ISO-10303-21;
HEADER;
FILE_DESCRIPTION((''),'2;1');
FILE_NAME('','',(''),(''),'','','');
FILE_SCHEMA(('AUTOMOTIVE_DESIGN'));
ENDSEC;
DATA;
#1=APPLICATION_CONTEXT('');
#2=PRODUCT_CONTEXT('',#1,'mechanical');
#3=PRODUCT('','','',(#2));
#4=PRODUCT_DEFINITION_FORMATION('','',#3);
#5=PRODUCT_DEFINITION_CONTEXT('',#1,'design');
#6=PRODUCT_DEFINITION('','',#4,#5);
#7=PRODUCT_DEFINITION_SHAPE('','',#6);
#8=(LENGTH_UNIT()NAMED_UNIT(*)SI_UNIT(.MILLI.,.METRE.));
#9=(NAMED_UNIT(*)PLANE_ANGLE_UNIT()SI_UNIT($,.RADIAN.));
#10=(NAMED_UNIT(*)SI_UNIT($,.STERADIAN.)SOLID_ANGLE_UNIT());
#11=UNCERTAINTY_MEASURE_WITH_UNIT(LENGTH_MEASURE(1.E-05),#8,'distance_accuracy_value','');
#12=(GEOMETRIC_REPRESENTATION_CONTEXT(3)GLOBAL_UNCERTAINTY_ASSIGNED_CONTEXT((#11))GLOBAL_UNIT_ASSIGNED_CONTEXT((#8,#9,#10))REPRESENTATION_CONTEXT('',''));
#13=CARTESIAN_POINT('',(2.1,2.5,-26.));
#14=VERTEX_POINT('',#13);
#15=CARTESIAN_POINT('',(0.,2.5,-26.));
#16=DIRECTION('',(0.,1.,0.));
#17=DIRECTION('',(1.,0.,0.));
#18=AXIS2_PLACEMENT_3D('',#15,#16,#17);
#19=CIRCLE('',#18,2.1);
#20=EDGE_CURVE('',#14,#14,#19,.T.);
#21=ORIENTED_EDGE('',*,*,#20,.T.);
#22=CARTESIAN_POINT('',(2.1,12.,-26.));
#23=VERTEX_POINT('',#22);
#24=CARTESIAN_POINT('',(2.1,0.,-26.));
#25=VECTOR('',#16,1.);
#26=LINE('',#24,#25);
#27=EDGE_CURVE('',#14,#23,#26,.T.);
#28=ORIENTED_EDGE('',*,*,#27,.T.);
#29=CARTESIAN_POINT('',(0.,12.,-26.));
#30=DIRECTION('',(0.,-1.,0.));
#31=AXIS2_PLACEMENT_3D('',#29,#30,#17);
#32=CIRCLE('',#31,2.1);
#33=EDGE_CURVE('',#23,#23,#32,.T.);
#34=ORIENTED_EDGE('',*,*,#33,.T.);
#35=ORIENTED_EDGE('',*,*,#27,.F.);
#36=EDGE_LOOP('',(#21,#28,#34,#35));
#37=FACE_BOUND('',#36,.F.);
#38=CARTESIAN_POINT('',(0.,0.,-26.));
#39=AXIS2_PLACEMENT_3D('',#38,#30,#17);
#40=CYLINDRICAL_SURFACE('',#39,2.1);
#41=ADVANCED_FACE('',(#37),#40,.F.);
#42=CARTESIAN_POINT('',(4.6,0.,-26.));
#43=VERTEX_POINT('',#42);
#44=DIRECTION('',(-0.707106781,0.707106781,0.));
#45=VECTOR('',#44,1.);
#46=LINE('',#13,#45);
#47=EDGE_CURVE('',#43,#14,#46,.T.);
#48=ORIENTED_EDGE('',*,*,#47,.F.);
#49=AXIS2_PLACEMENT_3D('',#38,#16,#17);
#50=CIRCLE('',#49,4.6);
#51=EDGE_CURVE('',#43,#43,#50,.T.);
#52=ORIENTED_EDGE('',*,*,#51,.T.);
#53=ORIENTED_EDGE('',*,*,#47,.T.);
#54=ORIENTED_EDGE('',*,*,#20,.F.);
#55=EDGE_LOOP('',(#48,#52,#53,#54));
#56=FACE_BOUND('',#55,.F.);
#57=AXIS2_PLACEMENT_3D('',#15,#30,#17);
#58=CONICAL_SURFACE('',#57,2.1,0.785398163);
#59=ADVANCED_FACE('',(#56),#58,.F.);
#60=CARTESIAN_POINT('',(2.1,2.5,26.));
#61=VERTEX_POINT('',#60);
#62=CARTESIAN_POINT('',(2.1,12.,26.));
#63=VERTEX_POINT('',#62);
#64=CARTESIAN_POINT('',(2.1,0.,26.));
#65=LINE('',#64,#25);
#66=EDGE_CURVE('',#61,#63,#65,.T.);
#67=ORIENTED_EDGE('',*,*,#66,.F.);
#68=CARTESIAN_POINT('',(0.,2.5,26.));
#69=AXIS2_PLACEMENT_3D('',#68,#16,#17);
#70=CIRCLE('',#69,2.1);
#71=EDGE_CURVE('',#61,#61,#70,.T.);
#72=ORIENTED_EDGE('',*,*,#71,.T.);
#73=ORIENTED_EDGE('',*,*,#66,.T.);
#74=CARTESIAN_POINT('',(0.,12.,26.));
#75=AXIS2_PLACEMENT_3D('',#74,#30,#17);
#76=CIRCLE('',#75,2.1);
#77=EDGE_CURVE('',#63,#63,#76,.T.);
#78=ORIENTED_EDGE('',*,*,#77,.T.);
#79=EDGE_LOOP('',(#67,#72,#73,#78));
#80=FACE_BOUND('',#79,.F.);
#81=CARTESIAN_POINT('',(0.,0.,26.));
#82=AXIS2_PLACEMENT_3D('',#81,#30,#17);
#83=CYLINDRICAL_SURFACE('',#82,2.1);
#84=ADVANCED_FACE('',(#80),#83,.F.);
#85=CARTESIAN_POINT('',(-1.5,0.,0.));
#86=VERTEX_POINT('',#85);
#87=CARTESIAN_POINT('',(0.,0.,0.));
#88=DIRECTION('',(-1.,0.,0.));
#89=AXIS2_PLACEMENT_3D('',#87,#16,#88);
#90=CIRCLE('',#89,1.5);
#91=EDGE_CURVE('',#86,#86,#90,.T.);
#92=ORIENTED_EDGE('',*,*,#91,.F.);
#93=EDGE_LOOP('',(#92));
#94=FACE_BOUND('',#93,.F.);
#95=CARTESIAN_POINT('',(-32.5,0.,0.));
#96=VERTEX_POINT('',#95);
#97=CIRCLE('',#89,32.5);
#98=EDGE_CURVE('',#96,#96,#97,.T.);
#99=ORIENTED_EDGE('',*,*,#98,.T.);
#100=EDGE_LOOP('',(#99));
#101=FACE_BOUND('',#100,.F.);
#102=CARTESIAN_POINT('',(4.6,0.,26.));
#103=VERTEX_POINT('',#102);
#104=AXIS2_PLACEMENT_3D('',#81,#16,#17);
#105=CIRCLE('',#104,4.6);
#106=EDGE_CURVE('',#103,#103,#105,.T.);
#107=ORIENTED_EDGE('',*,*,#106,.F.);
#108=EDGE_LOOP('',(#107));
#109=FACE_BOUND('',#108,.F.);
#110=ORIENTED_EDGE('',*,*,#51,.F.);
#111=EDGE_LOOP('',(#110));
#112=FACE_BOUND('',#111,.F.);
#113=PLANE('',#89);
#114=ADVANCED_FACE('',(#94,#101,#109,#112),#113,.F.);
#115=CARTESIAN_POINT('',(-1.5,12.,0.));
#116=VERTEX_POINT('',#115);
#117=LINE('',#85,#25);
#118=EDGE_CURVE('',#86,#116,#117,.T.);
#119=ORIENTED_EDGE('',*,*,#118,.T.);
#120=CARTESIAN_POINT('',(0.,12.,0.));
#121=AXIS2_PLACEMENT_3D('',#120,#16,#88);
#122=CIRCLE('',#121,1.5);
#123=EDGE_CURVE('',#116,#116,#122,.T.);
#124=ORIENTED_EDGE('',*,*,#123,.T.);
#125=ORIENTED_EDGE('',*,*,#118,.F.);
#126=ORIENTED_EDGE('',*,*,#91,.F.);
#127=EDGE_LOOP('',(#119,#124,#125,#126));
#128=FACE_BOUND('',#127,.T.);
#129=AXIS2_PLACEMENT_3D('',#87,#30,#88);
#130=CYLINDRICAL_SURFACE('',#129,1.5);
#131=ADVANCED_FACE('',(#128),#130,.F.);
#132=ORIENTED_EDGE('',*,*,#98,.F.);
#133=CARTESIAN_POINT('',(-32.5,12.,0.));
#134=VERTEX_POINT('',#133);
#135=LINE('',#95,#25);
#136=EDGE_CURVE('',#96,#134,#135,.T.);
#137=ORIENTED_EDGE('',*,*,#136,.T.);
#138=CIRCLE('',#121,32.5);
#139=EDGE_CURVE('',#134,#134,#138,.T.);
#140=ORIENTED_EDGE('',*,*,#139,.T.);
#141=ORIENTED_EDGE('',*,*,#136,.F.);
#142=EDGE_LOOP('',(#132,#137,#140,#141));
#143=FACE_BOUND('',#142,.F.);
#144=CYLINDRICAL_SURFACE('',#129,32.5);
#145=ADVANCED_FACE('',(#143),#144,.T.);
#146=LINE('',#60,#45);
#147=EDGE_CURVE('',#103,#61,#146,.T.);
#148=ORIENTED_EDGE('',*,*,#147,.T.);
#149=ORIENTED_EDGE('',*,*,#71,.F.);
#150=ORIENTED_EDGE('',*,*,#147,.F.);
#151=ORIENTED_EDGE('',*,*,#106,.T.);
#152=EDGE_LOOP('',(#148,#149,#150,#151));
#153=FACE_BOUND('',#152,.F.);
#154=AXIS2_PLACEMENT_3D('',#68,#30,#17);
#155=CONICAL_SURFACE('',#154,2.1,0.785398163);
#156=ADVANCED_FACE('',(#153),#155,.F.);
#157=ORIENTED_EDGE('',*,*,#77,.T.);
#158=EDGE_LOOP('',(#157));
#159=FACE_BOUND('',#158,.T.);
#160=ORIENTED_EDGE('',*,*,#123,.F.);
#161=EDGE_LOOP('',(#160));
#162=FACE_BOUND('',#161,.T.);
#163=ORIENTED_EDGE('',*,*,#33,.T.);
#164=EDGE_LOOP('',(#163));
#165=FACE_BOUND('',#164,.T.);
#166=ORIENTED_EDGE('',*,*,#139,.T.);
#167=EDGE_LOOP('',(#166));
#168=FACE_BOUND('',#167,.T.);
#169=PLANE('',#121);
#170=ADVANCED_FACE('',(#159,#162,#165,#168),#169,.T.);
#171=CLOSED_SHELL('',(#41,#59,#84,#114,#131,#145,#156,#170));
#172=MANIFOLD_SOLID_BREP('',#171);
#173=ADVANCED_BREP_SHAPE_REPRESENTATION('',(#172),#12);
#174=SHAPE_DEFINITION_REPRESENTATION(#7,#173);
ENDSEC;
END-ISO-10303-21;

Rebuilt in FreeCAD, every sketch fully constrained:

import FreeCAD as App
import Part
import Sketcher

V = App.Vector


def edges_at(feature, points):
    """Names of the edges that pass closest to the given points."""
    edges = feature.Shape.Edges
    near = lambda p: min(range(len(edges)), key=lambda i: edges[i].distToShape(Part.Vertex(*p))[0])
    return sorted({f"Edge{near(p) + 1}" for p in points})

doc = App.newDocument("Part")
params = doc.addObject("Spreadsheet::Sheet", "Params")
for row, (alias, value) in enumerate([
    ("sketch1_diameter", "65 mm"),
    ("sketch1_diameter2", "3 mm"),
    ("pad1_length", "12 mm"),
    ("sketch2_diameter", "4.2 mm"),
    ("pocket1_length", "12 mm"),
    ("chamfer_size", "2.5 mm"),
], start=1):
    params.set(f"A{row}", alias)
    params.set(f"B{row}", "=" + value)
    params.setAlias(f"B{row}", alias)

body = doc.addObject("PartDesign::Body", "Body")

# Sketch on XZ plane
sketch1 = doc.addObject("Sketcher::SketchObject", "Sketch")
body.addObject(sketch1)
sketch1.AttachmentSupport = (doc.XZ_Plane, [""])
sketch1.MapMode = "FlatFace"
sketch1.addGeometry(Part.Circle(V(0, 0, 0), V(0, 0, 1), 32.5), False)
sketch1.addGeometry(Part.Circle(V(0, 0, 0), V(0, 0, 1), 1.5), False)
sketch1.addConstraint(Sketcher.Constraint("Coincident", 0, 3, -1, 1))
sketch1.addConstraint(Sketcher.Constraint("Coincident", 1, 3, -1, 1))
sketch1.addConstraint(Sketcher.Constraint("Diameter", 0, 65.0))
sketch1.addConstraint(Sketcher.Constraint("Diameter", 1, 3.0))
sketch1.setExpression("Constraints[2]", "Params.sketch1_diameter")
sketch1.setExpression("Constraints[3]", "Params.sketch1_diameter2")
pad1 = doc.addObject("PartDesign::Pad", "Pad")
body.addObject(pad1)
pad1.Profile = sketch1
pad1.setExpression("Length", "Params.pad1_length")
pad1.Reversed = True

# Sketch on XZ plane
sketch2 = doc.addObject("Sketcher::SketchObject", "Sketch001")
body.addObject(sketch2)
sketch2.AttachmentSupport = (doc.XZ_Plane, [""])
sketch2.MapMode = "FlatFace"
sketch2.addGeometry(Part.Circle(V(0, 26, 0), V(0, 0, 1), 2.1), False)
sketch2.addGeometry(Part.Circle(V(0, -26, 0), V(0, 0, 1), 2.1), False)
sketch2.addConstraint(Sketcher.Constraint("Equal", 0, 1))
sketch2.addConstraint(Sketcher.Constraint("Symmetric", 0, 3, 1, 3, -1, 1))
sketch2.addConstraint(Sketcher.Constraint("PointOnObject", 0, 3, -2))
sketch2.addConstraint(Sketcher.Constraint("Diameter", 0, 4.2))
sketch2.addConstraint(Sketcher.Constraint("DistanceY", 1, 3, 0, 3, 52.0))
sketch2.setExpression("Constraints[3]", "Params.sketch2_diameter")
pocket1 = doc.addObject("PartDesign::Pocket", "Pocket")
body.addObject(pocket1)
pocket1.Profile = sketch2
pocket1.setExpression("Length", "Params.pocket1_length")
doc.recompute()

chamfer = doc.addObject("PartDesign::Chamfer", "Chamfer")
body.addObject(chamfer)
chamfer.Base = (pocket1, edges_at(pocket1, [(-2.1, 0, 26), (-2.1, 0, -26)]))
chamfer.setExpression("Size", "Params.chamfer_size")

doc.recompute()
